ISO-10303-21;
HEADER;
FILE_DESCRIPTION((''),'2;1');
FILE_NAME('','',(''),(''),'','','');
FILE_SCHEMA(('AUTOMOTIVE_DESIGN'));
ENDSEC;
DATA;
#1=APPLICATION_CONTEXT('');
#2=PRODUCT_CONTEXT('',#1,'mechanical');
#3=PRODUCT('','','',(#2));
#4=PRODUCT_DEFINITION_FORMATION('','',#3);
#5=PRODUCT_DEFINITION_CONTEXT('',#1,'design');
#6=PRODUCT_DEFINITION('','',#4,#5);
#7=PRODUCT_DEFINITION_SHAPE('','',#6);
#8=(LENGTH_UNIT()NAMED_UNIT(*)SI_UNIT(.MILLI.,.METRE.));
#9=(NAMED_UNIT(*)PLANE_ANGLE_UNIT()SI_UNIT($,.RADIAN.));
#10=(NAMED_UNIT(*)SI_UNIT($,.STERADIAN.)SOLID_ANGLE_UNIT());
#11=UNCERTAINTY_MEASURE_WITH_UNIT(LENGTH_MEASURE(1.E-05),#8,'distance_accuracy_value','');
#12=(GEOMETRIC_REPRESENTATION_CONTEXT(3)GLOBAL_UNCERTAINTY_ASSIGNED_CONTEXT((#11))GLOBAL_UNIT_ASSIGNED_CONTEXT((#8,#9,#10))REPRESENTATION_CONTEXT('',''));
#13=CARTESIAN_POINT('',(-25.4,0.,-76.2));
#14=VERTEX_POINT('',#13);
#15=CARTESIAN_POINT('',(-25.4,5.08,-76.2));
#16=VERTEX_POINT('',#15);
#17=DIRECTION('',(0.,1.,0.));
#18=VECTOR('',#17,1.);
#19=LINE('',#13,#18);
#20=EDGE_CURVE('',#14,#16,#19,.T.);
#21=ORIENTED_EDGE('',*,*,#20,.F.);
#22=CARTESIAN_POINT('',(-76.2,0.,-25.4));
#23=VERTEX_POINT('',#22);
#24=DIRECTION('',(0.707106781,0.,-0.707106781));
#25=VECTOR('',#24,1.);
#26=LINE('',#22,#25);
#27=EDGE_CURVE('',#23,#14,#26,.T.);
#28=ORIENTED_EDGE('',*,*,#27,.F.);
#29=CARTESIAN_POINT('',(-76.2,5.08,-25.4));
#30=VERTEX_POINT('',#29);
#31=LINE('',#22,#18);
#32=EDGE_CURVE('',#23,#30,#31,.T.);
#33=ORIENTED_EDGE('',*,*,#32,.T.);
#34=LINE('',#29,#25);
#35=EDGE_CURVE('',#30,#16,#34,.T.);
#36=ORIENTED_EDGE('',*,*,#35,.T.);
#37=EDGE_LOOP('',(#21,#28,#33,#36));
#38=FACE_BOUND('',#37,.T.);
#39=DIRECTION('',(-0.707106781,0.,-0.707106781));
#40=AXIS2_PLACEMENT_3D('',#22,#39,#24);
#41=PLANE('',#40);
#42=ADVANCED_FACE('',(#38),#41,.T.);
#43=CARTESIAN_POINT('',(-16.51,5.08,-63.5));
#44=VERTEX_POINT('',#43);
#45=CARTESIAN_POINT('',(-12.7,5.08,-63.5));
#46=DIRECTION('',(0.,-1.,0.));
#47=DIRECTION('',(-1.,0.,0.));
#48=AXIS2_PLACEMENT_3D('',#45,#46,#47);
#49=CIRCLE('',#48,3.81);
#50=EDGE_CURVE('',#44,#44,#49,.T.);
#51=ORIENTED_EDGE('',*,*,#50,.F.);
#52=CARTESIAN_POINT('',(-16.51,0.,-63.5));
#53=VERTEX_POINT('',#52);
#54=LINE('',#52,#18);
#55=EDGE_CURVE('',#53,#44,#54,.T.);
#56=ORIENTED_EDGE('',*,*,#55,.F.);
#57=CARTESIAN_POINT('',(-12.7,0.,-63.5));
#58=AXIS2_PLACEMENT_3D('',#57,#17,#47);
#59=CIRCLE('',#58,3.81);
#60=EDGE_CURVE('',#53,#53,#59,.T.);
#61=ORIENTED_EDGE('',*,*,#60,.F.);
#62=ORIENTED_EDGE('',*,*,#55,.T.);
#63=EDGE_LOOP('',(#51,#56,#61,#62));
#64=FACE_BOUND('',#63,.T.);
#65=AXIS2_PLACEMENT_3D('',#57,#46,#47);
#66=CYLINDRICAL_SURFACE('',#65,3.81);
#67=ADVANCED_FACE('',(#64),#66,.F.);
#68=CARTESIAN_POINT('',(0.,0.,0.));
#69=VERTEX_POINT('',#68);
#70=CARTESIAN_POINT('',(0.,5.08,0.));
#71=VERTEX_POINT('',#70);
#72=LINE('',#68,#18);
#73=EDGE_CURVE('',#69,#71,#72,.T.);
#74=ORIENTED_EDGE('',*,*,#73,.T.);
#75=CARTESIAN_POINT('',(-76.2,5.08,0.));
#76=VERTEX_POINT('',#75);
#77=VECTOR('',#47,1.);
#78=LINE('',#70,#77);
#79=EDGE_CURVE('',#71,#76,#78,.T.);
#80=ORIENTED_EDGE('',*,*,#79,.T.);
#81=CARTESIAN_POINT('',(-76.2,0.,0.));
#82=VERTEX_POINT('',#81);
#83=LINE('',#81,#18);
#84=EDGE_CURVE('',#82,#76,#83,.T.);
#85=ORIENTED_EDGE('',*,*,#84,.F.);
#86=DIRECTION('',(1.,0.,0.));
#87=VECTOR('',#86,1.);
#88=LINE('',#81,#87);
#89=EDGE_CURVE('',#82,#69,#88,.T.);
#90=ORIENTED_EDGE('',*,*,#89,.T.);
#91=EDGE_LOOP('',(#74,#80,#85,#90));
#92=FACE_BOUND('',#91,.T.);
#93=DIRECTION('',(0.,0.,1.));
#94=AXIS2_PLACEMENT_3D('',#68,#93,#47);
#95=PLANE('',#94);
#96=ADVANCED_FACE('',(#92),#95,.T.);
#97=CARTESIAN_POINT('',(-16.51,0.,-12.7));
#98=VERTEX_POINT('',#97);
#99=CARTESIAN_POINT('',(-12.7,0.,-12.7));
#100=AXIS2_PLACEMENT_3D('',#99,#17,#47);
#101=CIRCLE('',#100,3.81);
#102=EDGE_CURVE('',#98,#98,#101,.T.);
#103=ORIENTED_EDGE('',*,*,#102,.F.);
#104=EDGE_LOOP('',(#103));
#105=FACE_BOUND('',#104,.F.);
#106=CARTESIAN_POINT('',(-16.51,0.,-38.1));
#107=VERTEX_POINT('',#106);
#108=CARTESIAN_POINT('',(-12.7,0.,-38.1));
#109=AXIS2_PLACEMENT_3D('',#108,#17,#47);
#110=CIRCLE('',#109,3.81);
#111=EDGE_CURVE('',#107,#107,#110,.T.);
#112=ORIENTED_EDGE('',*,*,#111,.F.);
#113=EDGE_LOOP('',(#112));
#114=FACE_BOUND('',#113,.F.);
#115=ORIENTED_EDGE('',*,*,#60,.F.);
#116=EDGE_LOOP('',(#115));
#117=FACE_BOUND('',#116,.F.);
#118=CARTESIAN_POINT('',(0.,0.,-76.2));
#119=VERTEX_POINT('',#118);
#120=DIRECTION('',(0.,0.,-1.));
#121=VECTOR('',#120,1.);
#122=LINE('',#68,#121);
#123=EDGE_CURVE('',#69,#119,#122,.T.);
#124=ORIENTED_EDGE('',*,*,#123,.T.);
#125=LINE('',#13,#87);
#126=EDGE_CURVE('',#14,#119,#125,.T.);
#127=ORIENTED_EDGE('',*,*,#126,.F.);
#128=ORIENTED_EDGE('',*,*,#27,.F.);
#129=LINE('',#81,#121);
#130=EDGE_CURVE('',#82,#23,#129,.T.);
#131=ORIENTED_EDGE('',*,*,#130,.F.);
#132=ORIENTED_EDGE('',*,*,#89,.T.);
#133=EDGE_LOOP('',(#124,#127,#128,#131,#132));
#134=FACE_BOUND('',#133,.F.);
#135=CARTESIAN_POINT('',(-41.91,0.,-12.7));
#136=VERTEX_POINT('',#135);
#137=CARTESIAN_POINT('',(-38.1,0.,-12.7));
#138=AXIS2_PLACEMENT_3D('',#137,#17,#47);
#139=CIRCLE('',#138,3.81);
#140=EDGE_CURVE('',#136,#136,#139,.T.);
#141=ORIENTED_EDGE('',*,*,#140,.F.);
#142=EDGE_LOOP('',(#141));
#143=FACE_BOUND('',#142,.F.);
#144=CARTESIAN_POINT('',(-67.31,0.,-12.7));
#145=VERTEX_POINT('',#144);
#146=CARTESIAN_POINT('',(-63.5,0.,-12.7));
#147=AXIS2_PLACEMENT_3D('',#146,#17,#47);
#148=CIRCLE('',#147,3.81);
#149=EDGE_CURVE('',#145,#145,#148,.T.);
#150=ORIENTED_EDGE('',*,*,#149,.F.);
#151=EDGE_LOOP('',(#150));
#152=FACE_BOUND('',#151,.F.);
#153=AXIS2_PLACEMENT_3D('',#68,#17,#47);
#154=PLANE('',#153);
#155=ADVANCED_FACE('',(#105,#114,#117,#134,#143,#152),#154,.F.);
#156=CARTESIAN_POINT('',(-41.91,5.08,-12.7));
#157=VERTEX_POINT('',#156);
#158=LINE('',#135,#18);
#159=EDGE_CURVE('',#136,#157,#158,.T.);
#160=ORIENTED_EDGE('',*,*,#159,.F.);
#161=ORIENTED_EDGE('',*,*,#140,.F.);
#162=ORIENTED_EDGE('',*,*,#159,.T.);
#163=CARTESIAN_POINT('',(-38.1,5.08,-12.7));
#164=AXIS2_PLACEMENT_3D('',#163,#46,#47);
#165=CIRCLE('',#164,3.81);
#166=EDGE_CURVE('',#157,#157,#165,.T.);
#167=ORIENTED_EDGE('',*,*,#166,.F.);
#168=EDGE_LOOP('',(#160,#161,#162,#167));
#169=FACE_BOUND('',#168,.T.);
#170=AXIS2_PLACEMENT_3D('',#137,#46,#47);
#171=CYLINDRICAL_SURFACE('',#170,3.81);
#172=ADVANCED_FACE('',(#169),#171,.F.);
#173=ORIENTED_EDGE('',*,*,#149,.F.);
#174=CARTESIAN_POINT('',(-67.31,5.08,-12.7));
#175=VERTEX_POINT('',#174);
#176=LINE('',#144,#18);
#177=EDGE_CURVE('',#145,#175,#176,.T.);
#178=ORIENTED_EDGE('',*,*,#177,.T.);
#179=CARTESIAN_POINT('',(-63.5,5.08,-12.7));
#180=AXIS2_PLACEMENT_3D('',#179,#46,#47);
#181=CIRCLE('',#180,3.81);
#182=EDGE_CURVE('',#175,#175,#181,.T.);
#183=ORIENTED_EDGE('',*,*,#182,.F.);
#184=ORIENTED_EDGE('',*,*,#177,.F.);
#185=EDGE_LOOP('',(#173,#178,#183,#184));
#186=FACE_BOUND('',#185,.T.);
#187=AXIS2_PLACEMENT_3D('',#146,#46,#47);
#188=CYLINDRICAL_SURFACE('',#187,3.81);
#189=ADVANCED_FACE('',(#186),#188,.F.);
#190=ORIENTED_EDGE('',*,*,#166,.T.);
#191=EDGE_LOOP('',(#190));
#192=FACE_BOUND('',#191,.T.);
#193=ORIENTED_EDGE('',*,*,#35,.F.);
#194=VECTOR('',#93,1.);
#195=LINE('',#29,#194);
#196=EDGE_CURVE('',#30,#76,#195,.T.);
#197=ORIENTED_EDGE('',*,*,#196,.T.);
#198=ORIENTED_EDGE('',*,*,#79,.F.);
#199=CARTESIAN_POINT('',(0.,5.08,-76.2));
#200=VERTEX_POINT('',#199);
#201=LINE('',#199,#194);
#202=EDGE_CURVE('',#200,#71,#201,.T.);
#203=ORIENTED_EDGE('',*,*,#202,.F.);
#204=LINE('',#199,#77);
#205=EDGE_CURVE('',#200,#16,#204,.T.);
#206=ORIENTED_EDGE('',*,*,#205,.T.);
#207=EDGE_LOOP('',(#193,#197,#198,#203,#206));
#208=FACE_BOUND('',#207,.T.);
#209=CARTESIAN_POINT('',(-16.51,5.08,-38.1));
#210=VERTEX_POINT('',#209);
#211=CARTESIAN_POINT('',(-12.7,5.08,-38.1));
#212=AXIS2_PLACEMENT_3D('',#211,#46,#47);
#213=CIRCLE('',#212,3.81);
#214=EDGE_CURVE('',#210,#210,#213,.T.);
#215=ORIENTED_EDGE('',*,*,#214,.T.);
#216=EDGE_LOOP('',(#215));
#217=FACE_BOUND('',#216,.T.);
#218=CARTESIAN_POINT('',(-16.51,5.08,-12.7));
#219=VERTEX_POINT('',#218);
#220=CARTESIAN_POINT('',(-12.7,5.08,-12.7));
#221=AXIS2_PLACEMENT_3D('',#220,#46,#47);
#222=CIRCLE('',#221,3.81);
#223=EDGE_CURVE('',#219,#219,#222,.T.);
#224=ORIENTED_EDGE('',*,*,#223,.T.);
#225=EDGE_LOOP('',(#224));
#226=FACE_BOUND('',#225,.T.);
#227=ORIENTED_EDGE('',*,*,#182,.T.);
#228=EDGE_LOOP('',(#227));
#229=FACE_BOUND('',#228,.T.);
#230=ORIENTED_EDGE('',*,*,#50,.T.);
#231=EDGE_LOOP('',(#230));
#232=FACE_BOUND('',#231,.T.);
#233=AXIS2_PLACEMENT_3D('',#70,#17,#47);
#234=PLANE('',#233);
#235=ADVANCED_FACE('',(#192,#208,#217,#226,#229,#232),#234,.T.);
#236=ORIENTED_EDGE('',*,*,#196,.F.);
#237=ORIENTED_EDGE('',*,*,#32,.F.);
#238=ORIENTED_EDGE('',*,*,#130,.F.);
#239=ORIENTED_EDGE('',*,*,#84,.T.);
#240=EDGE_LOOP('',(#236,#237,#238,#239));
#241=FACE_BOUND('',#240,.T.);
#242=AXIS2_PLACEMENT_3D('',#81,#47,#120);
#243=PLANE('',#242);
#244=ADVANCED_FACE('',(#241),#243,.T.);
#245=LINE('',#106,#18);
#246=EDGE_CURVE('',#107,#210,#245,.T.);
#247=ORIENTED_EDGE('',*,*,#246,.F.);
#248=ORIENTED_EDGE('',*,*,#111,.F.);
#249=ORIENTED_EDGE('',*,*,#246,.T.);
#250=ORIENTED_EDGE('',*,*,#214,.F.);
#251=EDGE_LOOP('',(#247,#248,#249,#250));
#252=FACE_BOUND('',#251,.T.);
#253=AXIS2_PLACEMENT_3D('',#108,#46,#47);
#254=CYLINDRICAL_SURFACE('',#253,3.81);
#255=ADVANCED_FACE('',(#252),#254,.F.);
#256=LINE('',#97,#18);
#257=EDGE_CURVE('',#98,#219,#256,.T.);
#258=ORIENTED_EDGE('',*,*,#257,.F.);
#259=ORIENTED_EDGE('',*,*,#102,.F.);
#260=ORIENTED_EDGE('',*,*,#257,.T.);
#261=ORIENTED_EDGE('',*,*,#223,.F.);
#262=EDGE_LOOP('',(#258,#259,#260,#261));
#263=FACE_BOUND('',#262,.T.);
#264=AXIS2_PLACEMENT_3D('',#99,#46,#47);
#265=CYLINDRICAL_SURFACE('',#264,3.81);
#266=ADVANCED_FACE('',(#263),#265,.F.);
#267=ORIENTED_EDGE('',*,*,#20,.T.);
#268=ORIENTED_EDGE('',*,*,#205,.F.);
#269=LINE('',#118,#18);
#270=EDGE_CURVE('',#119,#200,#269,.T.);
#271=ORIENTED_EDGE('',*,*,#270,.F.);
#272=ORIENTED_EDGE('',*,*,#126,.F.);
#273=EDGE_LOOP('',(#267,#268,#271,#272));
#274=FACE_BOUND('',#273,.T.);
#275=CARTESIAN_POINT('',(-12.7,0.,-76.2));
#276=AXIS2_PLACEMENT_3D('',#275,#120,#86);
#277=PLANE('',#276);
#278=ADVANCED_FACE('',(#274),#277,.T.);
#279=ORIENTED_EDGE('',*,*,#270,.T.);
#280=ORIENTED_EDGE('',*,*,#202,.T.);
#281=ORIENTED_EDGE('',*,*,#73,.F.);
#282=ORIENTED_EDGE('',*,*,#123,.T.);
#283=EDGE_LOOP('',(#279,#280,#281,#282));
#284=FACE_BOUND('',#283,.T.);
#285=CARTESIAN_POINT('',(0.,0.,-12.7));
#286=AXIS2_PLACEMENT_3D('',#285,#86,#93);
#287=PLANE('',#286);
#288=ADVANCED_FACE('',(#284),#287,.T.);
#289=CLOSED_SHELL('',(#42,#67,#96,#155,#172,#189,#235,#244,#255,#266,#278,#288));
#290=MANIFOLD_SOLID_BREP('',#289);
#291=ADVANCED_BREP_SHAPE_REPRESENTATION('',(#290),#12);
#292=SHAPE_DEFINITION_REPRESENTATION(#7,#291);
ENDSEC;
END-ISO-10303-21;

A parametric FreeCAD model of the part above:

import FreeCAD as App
import Part
import Sketcher
from FreeCAD import Vector
Q = App.Units.Quantity

doc = App.newDocument("Part")
params = doc.addObject("Spreadsheet::Sheet", "Params")
for row, (alias, value) in enumerate([
    ("sketch1_diameter", "0.3 in"),
    ("sketch1_width", "1 in"),
    ("sketch1_width2", "3 in"),
    ("pad1_length", "0.2 in"),
], start=1):
    params.set(f"A{row}", alias)
    params.set(f"B{row}", "=" + value)
    params.setAlias(f"B{row}", alias)

body = doc.addObject("PartDesign::Body", "Body")

# Sketch on XZ plane
sketch1 = doc.addObject("Sketcher::SketchObject", "Sketch")
body.addObject(sketch1)
sketch1.AttachmentSupport = (doc.XZ_Plane, [""])
sketch1.MapMode = "FlatFace"
sketch1.addGeometry([
    Part.LineSegment(Vector(0, 0, 0), Vector(0, -76.2, 0)),  # 0
    Part.LineSegment(Vector(0, -76.2, 0), Vector(-25.4, -76.2, 0)),  # 1
    Part.LineSegment(Vector(-25.4, -76.2, 0), Vector(-76.2, -25.4, 0)),  # 2
    Part.LineSegment(Vector(-76.2, -25.4, 0), Vector(-76.2, 0, 0)),  # 3
    Part.LineSegment(Vector(-76.2, 0, 0), Vector(0, 0, 0)),  # 4
    Part.Circle(Vector(-12.7, -12.7, 0), Vector(0, 0, 1), 3.8),  # 5
    Part.Circle(Vector(-63.5, -12.7, 0), Vector(0, 0, 1), 3.8),  # 6
    Part.Circle(Vector(-38.1, -12.7, 0), Vector(0, 0, 1), 3.8),  # 7
    Part.Circle(Vector(-12.7, -38.1, 0), Vector(0, 0, 1), 3.8),  # 8
    Part.Circle(Vector(-12.7, -63.5, 0), Vector(0, 0, 1), 3.8),  # 9
], False)
sketch1.addConstraint([
    Sketcher.Constraint("Coincident", 0, 2, 1, 1),
    Sketcher.Constraint("Coincident", 1, 2, 2, 1),
    Sketcher.Constraint("Coincident", 2, 2, 3, 1),
    Sketcher.Constraint("Coincident", 3, 2, 4, 1),
    Sketcher.Constraint("Coincident", 4, 2, 0, 1),
    Sketcher.Constraint("Vertical", 0),
    Sketcher.Constraint("Horizontal", 1),
    Sketcher.Constraint("Vertical", 3),
    Sketcher.Constraint("Horizontal", 4),
    Sketcher.Constraint("Coincident", 4, 2, -1, 1),
    Sketcher.Constraint("Equal", 5, 6),
    Sketcher.Constraint("Equal", 6, 7),
    Sketcher.Constraint("Equal", 7, 8),
    Sketcher.Constraint("Equal", 8, 9),
    Sketcher.Constraint("Horizontal", 5, 3, 6, 3),
    Sketcher.Constraint("Horizontal", 6, 3, 7, 3),
    Sketcher.Constraint("Vertical", 5, 3, 8, 3),
    Sketcher.Constraint("Vertical", 8, 3, 9, 3),
    Sketcher.Constraint("Equal", 4, 0),
    Sketcher.Constraint("Equal", 1, 3),
    Sketcher.Constraint("Diameter", 5, Q("0.3 in")),
    Sketcher.Constraint("DistanceX", 1, 2, 1, 1, Q("1 in")),
    Sketcher.Constraint("DistanceX", 4, 1, 4, 2, Q("3 in")),
    Sketcher.Constraint("DistanceX", 6, 3, 7, 3, Q("1 in")),
    Sketcher.Constraint("DistanceX", 7, 3, 5, 3, Q("1 in")),
    Sketcher.Constraint("DistanceY", 8, 3, 5, 3, Q("1 in")),
    Sketcher.Constraint("DistanceY", 9, 3, 8, 3, Q("1 in")),
    Sketcher.Constraint("DistanceX", 5, 3, -1, 1, Q("0.5 in")),
    Sketcher.Constraint("DistanceY", 5, 3, -1, 1, Q("0.5 in")),
])
sketch1.setExpression("Constraints[20]", "Params.sketch1_diameter")
sketch1.setExpression("Constraints[21]", "Params.sketch1_width")
sketch1.setExpression("Constraints[22]", "Params.sketch1_width2")
pad1 = doc.addObject("PartDesign::Pad", "Pad")
body.addObject(pad1)
pad1.Profile = sketch1
pad1.setExpression("Length", "Params.pad1_length")
pad1.Reversed = True

doc.recompute()
